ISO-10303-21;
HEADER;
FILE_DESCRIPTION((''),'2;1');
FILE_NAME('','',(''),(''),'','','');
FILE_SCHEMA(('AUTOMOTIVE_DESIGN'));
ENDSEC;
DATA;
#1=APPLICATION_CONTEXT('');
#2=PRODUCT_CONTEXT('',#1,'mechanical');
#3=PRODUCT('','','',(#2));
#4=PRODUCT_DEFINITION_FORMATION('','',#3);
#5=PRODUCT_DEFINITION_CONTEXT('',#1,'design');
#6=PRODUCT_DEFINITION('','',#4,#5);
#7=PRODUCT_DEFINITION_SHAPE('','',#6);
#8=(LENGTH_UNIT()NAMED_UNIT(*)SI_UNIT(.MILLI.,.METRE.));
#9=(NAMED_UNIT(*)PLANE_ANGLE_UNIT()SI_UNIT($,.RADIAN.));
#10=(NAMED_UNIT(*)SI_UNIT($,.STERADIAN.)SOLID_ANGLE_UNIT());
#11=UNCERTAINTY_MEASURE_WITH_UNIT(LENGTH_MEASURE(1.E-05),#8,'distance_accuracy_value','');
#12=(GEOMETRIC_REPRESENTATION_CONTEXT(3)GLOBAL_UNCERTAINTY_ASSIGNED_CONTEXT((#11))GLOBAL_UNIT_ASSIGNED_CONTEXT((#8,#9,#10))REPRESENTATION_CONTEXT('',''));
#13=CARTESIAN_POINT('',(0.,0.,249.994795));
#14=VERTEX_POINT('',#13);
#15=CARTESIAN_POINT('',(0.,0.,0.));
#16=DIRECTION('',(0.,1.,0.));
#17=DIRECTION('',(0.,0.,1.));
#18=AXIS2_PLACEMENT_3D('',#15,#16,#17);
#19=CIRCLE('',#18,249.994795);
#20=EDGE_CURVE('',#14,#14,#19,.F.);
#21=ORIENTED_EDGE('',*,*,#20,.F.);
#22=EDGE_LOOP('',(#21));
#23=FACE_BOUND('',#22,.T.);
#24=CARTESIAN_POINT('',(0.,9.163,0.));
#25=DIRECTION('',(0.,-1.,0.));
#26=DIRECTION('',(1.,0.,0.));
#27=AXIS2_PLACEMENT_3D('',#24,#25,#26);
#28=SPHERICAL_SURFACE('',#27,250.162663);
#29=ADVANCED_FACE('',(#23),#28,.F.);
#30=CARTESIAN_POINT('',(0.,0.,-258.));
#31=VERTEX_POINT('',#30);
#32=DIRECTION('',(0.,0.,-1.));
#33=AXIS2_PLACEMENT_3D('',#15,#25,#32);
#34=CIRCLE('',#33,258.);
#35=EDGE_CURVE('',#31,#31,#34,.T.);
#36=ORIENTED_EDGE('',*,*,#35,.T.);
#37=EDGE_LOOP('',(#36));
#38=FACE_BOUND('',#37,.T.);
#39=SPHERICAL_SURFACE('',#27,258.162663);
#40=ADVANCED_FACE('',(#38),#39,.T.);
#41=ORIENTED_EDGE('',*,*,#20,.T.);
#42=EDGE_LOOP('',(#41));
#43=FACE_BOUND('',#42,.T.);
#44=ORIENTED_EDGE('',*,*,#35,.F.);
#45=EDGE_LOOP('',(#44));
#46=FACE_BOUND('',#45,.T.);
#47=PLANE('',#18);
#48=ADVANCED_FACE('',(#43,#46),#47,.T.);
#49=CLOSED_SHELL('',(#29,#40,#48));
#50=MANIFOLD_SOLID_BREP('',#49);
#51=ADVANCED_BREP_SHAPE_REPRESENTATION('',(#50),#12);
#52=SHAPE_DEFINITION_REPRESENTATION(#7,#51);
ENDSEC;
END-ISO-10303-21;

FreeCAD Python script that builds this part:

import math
import FreeCAD as App
import Part
import Sketcher
Q = App.Units.Quantity


def faces_at(feature, points):
    """Names of the faces that lie closest to the given points."""
    faces = feature.Shape.Faces
    near = lambda p: min(range(len(faces)), key=lambda i: faces[i].distToShape(Part.Vertex(*p))[0])
    return sorted({f"Face{near(p) + 1}" for p in points})

doc = App.newDocument("Part")
body = doc.addObject("PartDesign::Body", "Body")

# Sketch on XY plane
sketch1 = doc.addObject("Sketcher::SketchObject", "Sketch")
body.addObject(sketch1)
sketch1.AttachmentSupport = (doc.XY_Plane, [""])
sketch1.MapMode = "FlatFace"
sketch1.addGeometry([
    Part.LineSegment(App.Vector(258, 0, 0), App.Vector(0, 0, 0)),
    Part.LineSegment(App.Vector(0, 0, 0), App.Vector(0, -248.999663, 0)),
    Part.ArcOfCircle(Part.Circle(App.Vector(0, 9.163, 0), App.Vector(0, 0, 1), 258.162663), math.radians(-90), math.radians(-2.034034)),
], False)
sketch1.addConstraint([
    Sketcher.Constraint("Coincident", 0, 2, 1, 1),
    Sketcher.Constraint("Coincident", 1, 2, 2, 1),
    Sketcher.Constraint("Coincident", 2, 2, 0, 1),
    Sketcher.Constraint("Horizontal", 0),
    Sketcher.Constraint("Vertical", 1),
    Sketcher.Constraint("Coincident", 0, 2, -1, 1),
    Sketcher.Constraint("PointOnObject", 2, 3, -2),
    Sketcher.Constraint("DistanceX", 0, 2, 0, 1, Q("258 mm")),
    Sketcher.Constraint("DistanceY", -1, 1, 2, 3, Q("9.163 mm")),
])
revolution = doc.addObject("PartDesign::Revolution", "Revolution")
body.addObject(revolution)
revolution.Profile = sketch1
revolution.ReferenceAxis = (sketch1, ["V_Axis"])
revolution.Angle = 360
doc.recompute()

thickness = doc.addObject("PartDesign::Thickness", "Thickness")
body.addObject(thickness)
thickness.Base = (revolution, faces_at(revolution, [(0, 0, 0)]))
thickness.Value = 8
thickness.Reversed = True
thickness.Join = "Intersection"

doc.recompute()
